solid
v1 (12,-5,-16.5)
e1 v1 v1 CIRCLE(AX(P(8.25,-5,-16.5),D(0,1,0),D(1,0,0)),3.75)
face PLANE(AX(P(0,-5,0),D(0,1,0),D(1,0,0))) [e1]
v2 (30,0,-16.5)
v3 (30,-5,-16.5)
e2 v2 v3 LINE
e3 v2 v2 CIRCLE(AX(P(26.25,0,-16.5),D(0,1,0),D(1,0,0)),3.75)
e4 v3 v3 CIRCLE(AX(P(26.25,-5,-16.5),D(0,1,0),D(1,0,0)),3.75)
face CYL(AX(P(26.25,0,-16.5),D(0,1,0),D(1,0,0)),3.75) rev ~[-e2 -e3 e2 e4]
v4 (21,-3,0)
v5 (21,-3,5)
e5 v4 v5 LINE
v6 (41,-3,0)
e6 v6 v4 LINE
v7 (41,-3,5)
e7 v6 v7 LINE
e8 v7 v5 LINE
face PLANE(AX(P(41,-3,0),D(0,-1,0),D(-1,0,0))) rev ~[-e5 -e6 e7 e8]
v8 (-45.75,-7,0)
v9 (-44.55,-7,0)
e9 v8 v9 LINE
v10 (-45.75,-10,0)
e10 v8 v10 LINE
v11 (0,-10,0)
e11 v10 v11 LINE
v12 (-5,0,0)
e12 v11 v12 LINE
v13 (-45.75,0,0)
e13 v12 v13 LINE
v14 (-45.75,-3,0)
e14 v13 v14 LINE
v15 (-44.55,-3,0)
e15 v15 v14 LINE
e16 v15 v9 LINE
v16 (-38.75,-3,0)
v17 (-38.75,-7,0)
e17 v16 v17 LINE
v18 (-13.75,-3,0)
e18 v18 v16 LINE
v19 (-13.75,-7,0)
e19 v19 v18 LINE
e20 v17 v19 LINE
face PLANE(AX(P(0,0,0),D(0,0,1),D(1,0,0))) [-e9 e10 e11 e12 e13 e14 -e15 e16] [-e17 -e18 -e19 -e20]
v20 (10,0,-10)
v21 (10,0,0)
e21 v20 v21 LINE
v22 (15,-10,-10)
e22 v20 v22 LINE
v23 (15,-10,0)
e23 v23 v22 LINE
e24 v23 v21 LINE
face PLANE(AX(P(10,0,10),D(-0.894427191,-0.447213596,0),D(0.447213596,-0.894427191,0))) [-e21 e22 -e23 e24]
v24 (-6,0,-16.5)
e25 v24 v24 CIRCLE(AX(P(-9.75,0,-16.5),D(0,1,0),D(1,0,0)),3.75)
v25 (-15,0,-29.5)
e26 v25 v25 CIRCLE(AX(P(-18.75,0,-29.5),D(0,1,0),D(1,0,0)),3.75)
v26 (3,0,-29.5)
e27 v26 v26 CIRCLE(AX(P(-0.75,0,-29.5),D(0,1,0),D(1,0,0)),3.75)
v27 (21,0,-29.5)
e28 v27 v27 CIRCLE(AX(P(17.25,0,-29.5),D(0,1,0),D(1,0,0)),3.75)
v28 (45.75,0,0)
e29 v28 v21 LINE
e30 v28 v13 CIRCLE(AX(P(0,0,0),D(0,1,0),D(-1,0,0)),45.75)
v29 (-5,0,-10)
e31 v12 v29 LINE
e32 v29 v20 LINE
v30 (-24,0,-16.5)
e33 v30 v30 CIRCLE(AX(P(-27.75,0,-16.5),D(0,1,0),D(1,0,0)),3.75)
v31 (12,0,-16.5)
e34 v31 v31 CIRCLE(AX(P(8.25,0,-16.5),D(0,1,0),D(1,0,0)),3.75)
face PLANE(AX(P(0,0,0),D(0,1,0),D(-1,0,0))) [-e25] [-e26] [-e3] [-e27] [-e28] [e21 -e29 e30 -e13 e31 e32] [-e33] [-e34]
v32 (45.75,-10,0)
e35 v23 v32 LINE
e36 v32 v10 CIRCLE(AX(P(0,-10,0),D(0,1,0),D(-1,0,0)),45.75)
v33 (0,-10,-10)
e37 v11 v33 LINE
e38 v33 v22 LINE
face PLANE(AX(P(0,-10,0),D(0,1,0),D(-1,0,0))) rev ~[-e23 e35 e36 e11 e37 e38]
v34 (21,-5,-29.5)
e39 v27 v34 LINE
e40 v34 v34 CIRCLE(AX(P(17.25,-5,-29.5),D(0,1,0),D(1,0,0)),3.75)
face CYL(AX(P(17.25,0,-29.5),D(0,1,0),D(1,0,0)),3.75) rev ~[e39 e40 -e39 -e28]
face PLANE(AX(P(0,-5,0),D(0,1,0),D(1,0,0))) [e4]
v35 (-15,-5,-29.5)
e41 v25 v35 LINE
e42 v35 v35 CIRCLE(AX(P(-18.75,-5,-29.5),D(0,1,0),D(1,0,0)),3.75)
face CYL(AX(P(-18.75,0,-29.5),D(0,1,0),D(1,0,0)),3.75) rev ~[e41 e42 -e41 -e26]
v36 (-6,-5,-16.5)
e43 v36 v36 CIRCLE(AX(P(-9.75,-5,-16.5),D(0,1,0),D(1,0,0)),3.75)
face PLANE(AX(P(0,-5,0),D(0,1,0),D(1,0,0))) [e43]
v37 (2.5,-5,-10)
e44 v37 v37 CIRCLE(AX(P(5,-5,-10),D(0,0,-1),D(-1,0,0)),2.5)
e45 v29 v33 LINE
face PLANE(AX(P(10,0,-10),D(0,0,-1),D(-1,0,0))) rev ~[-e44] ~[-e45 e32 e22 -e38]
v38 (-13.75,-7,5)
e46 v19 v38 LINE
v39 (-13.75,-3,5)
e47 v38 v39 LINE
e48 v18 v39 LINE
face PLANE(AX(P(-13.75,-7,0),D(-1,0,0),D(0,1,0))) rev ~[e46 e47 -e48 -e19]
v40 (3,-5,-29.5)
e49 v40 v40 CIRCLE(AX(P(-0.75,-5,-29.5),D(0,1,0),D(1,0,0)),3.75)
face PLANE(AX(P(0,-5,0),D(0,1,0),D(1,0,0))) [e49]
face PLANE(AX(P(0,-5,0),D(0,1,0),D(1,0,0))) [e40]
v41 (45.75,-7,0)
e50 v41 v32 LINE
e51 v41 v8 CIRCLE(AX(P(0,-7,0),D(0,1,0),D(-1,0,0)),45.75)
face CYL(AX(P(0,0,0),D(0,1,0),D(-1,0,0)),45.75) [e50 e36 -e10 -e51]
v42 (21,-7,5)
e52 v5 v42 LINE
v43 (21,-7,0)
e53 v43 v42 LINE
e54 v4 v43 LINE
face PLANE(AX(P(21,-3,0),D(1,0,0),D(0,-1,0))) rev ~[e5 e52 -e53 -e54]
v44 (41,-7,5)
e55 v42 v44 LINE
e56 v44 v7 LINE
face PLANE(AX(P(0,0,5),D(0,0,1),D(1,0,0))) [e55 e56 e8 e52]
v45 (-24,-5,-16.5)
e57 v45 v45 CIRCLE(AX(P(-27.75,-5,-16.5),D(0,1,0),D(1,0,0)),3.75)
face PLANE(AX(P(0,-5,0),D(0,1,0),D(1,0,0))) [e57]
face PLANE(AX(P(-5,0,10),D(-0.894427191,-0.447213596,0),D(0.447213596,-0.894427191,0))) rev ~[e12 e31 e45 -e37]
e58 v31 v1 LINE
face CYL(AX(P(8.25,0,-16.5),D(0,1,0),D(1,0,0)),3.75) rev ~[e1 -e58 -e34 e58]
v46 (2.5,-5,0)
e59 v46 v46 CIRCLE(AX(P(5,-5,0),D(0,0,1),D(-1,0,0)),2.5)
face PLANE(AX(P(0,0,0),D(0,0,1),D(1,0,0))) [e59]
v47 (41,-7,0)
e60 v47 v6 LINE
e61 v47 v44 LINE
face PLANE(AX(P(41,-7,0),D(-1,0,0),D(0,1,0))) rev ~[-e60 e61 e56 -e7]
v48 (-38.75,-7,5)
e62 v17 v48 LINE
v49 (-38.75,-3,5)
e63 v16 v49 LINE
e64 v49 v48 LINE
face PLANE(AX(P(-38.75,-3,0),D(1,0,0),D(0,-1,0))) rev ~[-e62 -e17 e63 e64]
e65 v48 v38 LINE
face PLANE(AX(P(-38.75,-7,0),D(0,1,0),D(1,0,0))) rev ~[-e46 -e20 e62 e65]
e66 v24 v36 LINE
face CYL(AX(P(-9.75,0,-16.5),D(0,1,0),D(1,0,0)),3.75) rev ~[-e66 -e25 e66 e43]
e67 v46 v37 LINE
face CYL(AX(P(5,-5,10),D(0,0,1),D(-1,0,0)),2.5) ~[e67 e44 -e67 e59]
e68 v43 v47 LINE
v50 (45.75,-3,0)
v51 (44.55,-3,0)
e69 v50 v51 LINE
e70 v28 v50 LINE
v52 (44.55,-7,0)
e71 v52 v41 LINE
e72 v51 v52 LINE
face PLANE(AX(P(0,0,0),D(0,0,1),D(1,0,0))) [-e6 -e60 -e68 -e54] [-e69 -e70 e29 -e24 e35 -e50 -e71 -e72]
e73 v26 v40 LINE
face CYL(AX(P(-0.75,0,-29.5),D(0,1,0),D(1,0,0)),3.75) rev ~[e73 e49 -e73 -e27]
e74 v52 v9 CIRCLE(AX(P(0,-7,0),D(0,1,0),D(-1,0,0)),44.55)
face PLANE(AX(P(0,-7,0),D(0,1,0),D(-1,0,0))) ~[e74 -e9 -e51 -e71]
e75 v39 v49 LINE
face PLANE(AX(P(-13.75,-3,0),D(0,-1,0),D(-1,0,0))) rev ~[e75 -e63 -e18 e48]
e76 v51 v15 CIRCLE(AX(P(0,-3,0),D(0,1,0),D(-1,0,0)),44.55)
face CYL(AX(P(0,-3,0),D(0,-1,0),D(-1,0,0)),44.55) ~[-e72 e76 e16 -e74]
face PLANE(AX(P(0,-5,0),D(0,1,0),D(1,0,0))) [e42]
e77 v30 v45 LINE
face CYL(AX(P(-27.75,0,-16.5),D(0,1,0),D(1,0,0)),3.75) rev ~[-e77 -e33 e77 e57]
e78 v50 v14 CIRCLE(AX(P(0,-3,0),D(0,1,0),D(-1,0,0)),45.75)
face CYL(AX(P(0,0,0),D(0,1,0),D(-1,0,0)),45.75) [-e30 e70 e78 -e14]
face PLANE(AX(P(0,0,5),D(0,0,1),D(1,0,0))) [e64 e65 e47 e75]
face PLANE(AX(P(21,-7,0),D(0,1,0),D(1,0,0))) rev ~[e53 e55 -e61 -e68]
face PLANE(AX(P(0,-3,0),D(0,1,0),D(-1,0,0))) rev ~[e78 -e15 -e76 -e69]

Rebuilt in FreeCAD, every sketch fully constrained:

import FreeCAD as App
import Part
import Sketcher
from FreeCAD import Vector
Q = App.Units.Quantity


def add_polygon(sketch, points):
    """Adds a closed chain of lines whose ends are joined by coincident constraints."""
    first, n = sketch.GeometryCount, len(points)
    for a, b in zip(points, points[1:] + points[:1]):
        sketch.addGeometry(Part.LineSegment(App.Vector(*a, 0), App.Vector(*b, 0)), False)
    for i in range(n):
        sketch.addConstraint(Sketcher.Constraint("Coincident", first + i, 2, first + (i + 1) % n, 1))

doc = App.newDocument("Part")
body = doc.addObject("PartDesign::Body", "Body")

# Sketch on XZ plane
sketch1 = doc.addObject("Sketcher::SketchObject", "Sketch")
body.addObject(sketch1)
sketch1.AttachmentSupport = (doc.XZ_Plane, [""])
sketch1.MapMode = "FlatFace"
sketch1.addGeometry(Part.Circle(Vector(0, 0, 0), Vector(0, 0, 1), 46), False)  # 0
add_polygon(sketch1, [(15, 10), (-10, 10), (-10, -10), (15, -10)])  # lines 1-4
sketch1.addConstraint([
    Sketcher.Constraint("Horizontal", 1),
    Sketcher.Constraint("Vertical", 2),
    Sketcher.Constraint("Horizontal", 3),
    Sketcher.Constraint("Vertical", 4),
    Sketcher.Constraint("Coincident", 0, 3, -1, 1),
    Sketcher.Constraint("Diameter", 0, Q("91.5 mm")),
    Sketcher.Constraint("DistanceY", 2, 2, 2, 1, Q("20 mm")),
    Sketcher.Constraint("DistanceX", 1, 2, 1, 1, Q("25 mm")),
    Sketcher.Constraint("DistanceX", 1, 2, -1, 1, Q("10 mm")),
    Sketcher.Constraint("DistanceY", -1, 1, 1, 2, Q("10 mm")),
])
pad1 = doc.addObject("PartDesign::Pad", "Pad")
body.addObject(pad1)
pad1.Profile = sketch1
pad1.Length = 10

# Sketch on XY plane
sketch2 = doc.addObject("Sketcher::SketchObject", "Sketch001")
body.addObject(sketch2)
sketch2.AttachmentSupport = (doc.XY_Plane, [""])
sketch2.MapMode = "FlatFace"
sketch2.AttachmentOffset = App.Placement(Vector(0, 0, -10), App.Rotation())
add_polygon(sketch2, [(10, 0), (15, -5), (15, 0)])  # lines 0-2
sketch2.addConstraint([
    Sketcher.Constraint("Vertical", 1),
    Sketcher.Constraint("Horizontal", 2),
    Sketcher.Constraint("PointOnObject", 1, 2, -1),
    Sketcher.Constraint("Equal", 2, 1),
    Sketcher.Constraint("DistanceX", 2, 2, 2, 1, Q("5 mm")),
    Sketcher.Constraint("DistanceX", -1, 1, 0, 2, Q("15 mm")),
])
pad2 = doc.addObject("PartDesign::Pad", "Pad001")
body.addObject(pad2)
pad2.Profile = sketch2
pad2.Type = "TwoLengths"
pad2.Length = 20.5
pad2.Length2 = 0.5

# Sketch on XY plane
sketch3 = doc.addObject("Sketcher::SketchObject", "Sketch002")
body.addObject(sketch3)
sketch3.AttachmentSupport = (doc.XY_Plane, [""])
sketch3.MapMode = "FlatFace"
sketch3.AttachmentOffset = App.Placement(Vector(0, 0, -10.5), App.Rotation())
add_polygon(sketch3, [(-12, -5), (-5, -5), (-5, 0), (-12, 0)])  # lines 0-3
sketch3.addConstraint([
    Sketcher.Constraint("Horizontal", 0),
    Sketcher.Constraint("Vertical", 1),
    Sketcher.Constraint("Horizontal", 2),
    Sketcher.Constraint("Vertical", 3),
    Sketcher.Constraint("PointOnObject", 1, 2, -1),
    Sketcher.Constraint("DistanceY", 1, 1, 1, 2, Q("5 mm")),
    Sketcher.Constraint("DistanceX", 0, 2, -1, 1, Q("5 mm")),
    Sketcher.Constraint("DistanceX", 0, 1, 0, 2, Q("7.2866 mm")),
])
pad3 = doc.addObject("PartDesign::Pad", "Pad002")
body.addObject(pad3)
pad3.Profile = sketch3
pad3.Length = 21

# Sketch on XY plane
sketch4 = doc.addObject("Sketcher::SketchObject", "Sketch003")
body.addObject(sketch4)
sketch4.AttachmentSupport = (doc.XY_Plane, [""])
sketch4.MapMode = "FlatFace"
sketch4.AttachmentOffset = App.Placement(Vector(0, 0, -10), App.Rotation())
add_polygon(sketch4, [(15, -10), (15, -5), (10, 0), (-5, 0), (-5, -5), (-10, -5), (-10, -10)])  # lines 0-6
sketch4.addConstraint([
    Sketcher.Constraint("Vertical", 0),
    Sketcher.Constraint("Horizontal", 2),
    Sketcher.Constraint("Vertical", 3),
    Sketcher.Constraint("Horizontal", 4),
    Sketcher.Constraint("Vertical", 5),
    Sketcher.Constraint("Horizontal", 6),
    Sketcher.Constraint("PointOnObject", 1, 2, -1),
    Sketcher.Constraint("Horizontal", 0, 2, 3, 2),
    Sketcher.Constraint("Equal", 4, 0),
    Sketcher.Constraint("Equal", 0, 3),
    Sketcher.Constraint("DistanceX", 4, 2, 4, 1, Q("5 mm")),
    Sketcher.Constraint("DistanceX", 2, 2, -1, 1, Q("5 mm")),
    Sketcher.Constraint("DistanceX", 1, 2, 0, 2, Q("5 mm")),
    Sketcher.Constraint("DistanceX", 2, 2, 2, 1, Q("15 mm")),
])
pad4 = doc.addObject("PartDesign::Pad", "Pad003")
body.addObject(pad4)
pad4.Profile = sketch4
pad4.Length = 21

# Sketch on XZ plane
sketch5 = doc.addObject("Sketcher::SketchObject", "Sketch004")
body.addObject(sketch5)
sketch5.AttachmentSupport = (doc.XZ_Plane, [""])
sketch5.MapMode = "FlatFace"
add_polygon(sketch5, [(0, 10), (10, 10), (10, -10), (0, -10)])  # lines 0-3
sketch5.addConstraint([
    Sketcher.Constraint("Horizontal", 0),
    Sketcher.Constraint("Vertical", 1),
    Sketcher.Constraint("Horizontal", 2),
    Sketcher.Constraint("Vertical", 3),
    Sketcher.Constraint("Symmetric", 2, 2, 3, 2, -1, 1),
    Sketcher.Constraint("DistanceX", 0, 1, 0, 2, Q("10 mm")),
    Sketcher.Constraint("DistanceY", 1, 2, 1, 1, Q("20 mm")),
])
pocket1 = doc.addObject("PartDesign::Pocket", "Pocket")
body.addObject(pocket1)
pocket1.Profile = sketch5
pocket1.Length = 10
pocket1.Reversed = True

# Sketch on XY plane
sketch6 = doc.addObject("Sketcher::SketchObject", "Sketch005")
body.addObject(sketch6)
sketch6.AttachmentSupport = (doc.XY_Plane, [""])
sketch6.MapMode = "FlatFace"
sketch6.AttachmentOffset = App.Placement(Vector(0, 0, 10), App.Rotation())
add_polygon(sketch6, [(0, 0), (0, -10), (-5, 0)])  # lines 0-2
sketch6.addConstraint([
    Sketcher.Constraint("Vertical", 0),
    Sketcher.Constraint("Horizontal", 2),
    Sketcher.Constraint("Coincident", 2, 2, -1, 1),
    Sketcher.Constraint("DistanceX", 2, 1, 2, 2, Q("5 mm")),
    Sketcher.Constraint("DistanceY", 0, 2, 0, 1, Q("10 mm")),
])
pocket2 = doc.addObject("PartDesign::Pocket", "Pocket001")
body.addObject(pocket2)
pocket2.Profile = sketch6
pocket2.Length = 20

# Sketch on XY plane
sketch7 = doc.addObject("Sketcher::SketchObject", "Sketch006")
body.addObject(sketch7)
sketch7.AttachmentSupport = (doc.XY_Plane, [""])
sketch7.MapMode = "FlatFace"
sketch7.AttachmentOffset = App.Placement(Vector(0, 0, 10), App.Rotation())
add_polygon(sketch7, [(10, -10), (10, 0), (15, -10)])  # lines 0-2
sketch7.addConstraint([
    Sketcher.Constraint("Vertical", 0),
    Sketcher.Constraint("Horizontal", 2),
    Sketcher.Constraint("PointOnObject", 0, 2, -1),
    Sketcher.Constraint("DistanceX", 2, 2, 2, 1, Q("5 mm")),
    Sketcher.Constraint("DistanceY", 0, 1, 0, 2, Q("10 mm")),
    Sketcher.Constraint("DistanceX", -1, 1, 0, 2, Q("10 mm")),
])
pocket3 = doc.addObject("PartDesign::Pocket", "Pocket002")
body.addObject(pocket3)
pocket3.Profile = sketch7
pocket3.Length = 20

# Sketch on XY plane
sketch8 = doc.addObject("Sketcher::SketchObject", "Sketch007")
body.addObject(sketch8)
sketch8.AttachmentSupport = (doc.XY_Plane, [""])
sketch8.MapMode = "FlatFace"
sketch8.AttachmentOffset = App.Placement(Vector(0, 0, 10), App.Rotation())
sketch8.addGeometry(Part.Circle(Vector(5, -5, 0), Vector(0, 0, 1), 2.5), False)
sketch8.addConstraint([
    Sketcher.Constraint("Diameter", 0, Q("5 mm")),
    Sketcher.Constraint("DistanceX", -1, 1, 0, 3, Q("5 mm")),
    Sketcher.Constraint("DistanceY", 0, 3, -1, 1, Q("5 mm")),
])
pad5 = doc.addObject("PartDesign::Pad", "Pad004")
body.addObject(pad5)
pad5.Profile = sketch8
pad5.Length = 20
pad5.Reversed = True

# Sketch on XY plane
sketch9 = doc.addObject("Sketcher::SketchObject", "Sketch008")
body.addObject(sketch9)
sketch9.AttachmentSupport = (doc.XY_Plane, [""])
sketch9.MapMode = "FlatFace"
add_polygon(sketch9, [(-46, 0), (-46, -10), (46, -10), (46, 0)])  # lines 0-3
sketch9.addConstraint([
    Sketcher.Constraint("Vertical", 0),
    Sketcher.Constraint("Horizontal", 1),
    Sketcher.Constraint("Vertical", 2),
    Sketcher.Constraint("Horizontal", 3),
    Sketcher.Constraint("Symmetric", 2, 2, 3, 2, -1, 1),
    Sketcher.Constraint("DistanceY", 0, 2, 0, 1, Q("10 mm")),
    Sketcher.Constraint("DistanceX", 1, 1, 1, 2, Q("91.5 mm")),
])
pocket4 = doc.addObject("PartDesign::Pocket", "Pocket003")
body.addObject(pocket4)
pocket4.Profile = sketch9
pocket4.Length = 50
pocket4.Reversed = True

# Sketch on XY plane
sketch10 = doc.addObject("Sketcher::SketchObject", "Sketch009")
body.addObject(sketch10)
sketch10.AttachmentSupport = (doc.XY_Plane, [""])
sketch10.MapMode = "FlatFace"
add_polygon(sketch10, [(-38.8, -3), (-38.8, -7), (-13.8, -7), (-13.8, -3)])  # lines 0-3
add_polygon(sketch10, [(21, -3), (21, -7), (41, -7), (41, -3)])  # lines 4-7
sketch10.addConstraint([
    Sketcher.Constraint("Vertical", 0),
    Sketcher.Constraint("Horizontal", 1),
    Sketcher.Constraint("Vertical", 2),
    Sketcher.Constraint("Horizontal", 3),
    Sketcher.Constraint("Vertical", 4),
    Sketcher.Constraint("Horizontal", 5),
    Sketcher.Constraint("Vertical", 6),
    Sketcher.Constraint("Horizontal", 7),
    Sketcher.Constraint("Horizontal", 1, 2, 4, 2),
    Sketcher.Constraint("Horizontal", 3, 2, 6, 2),
    Sketcher.Constraint("DistanceX", 1, 1, 1, 2, Q("25 mm")),
    Sketcher.Constraint("DistanceX", 5, 1, 5, 2, Q("20 mm")),
    Sketcher.Constraint("DistanceY", 0, 2, 0, 1, Q("4 mm")),
    Sketcher.Constraint("DistanceY", 0, 2, -1, 1, Q("7 mm")),
    Sketcher.Constraint("DistanceX", -1, 1, 4, 2, Q("21 mm")),
    Sketcher.Constraint("DistanceX", 0, 2, -1, 1, Q("38.75 mm")),
])
pad6 = doc.addObject("PartDesign::Pad", "Pad005")
body.addObject(pad6)
pad6.Profile = sketch10
pad6.Length = 5

# Sketch on XY plane
sketch11 = doc.addObject("Sketcher::SketchObject", "Sketch010")
body.addObject(sketch11)
sketch11.AttachmentSupport = (doc.XY_Plane, [""])
sketch11.MapMode = "FlatFace"
add_polygon(sketch11, [(-44.5, -3), (-45.8, -3), (-45.8, -7), (-44.5, -7)])  # lines 0-3
sketch11.addConstraint([
    Sketcher.Constraint("Horizontal", 0),
    Sketcher.Constraint("Vertical", 1),
    Sketcher.Constraint("Horizontal", 2),
    Sketcher.Constraint("Vertical", 3),
    Sketcher.Constraint("DistanceY", 1, 2, 1, 1, Q("4 mm")),
    Sketcher.Constraint("DistanceX", 0, 2, 0, 1, Q("1.2 mm")),
    Sketcher.Constraint("DistanceY", 0, 2, -1, 1, Q("3 mm")),
    Sketcher.Constraint("DistanceX", 0, 2, -1, 1, Q("45.75 mm")),
])
groove = doc.addObject("PartDesign::Groove", "Groove")
body.addObject(groove)
groove.Profile = sketch11
groove.ReferenceAxis = (sketch11, ["V_Axis"])
groove.Angle = 360

# Sketch on XZ plane
sketch12 = doc.addObject("Sketcher::SketchObject", "Sketch011")
body.addObject(sketch12)
sketch12.AttachmentSupport = (doc.XZ_Plane, [""])
sketch12.MapMode = "FlatFace"
sketch12.addGeometry([
    Part.Circle(Vector(-27.8, -16.5, 0), Vector(0, 0, 1), 3.8),  # 0
    Part.Circle(Vector(-9.8, -16.5, 0), Vector(0, 0, 1), 3.8),  # 1
    Part.Circle(Vector(8.2, -16.5, 0), Vector(0, 0, 1), 3.8),  # 2
    Part.Circle(Vector(26.2, -16.5, 0), Vector(0, 0, 1), 3.8),  # 3
    Part.Circle(Vector(-18.8, -29.5, 0), Vector(0, 0, 1), 3.8),  # 4
    Part.Circle(Vector(-0.8, -29.5, 0), Vector(0, 0, 1), 3.8),  # 5
    Part.Circle(Vector(17.2, -29.5, 0), Vector(0, 0, 1), 3.8),  # 6
], False)
sketch12.addConstraint([
    Sketcher.Constraint("Equal", 0, 1),
    Sketcher.Constraint("Equal", 1, 2),
    Sketcher.Constraint("Equal", 2, 3),
    Sketcher.Constraint("Equal", 3, 4),
    Sketcher.Constraint("Equal", 4, 5),
    Sketcher.Constraint("Equal", 5, 6),
    Sketcher.Constraint("Horizontal", 0, 3, 1, 3),
    Sketcher.Constraint("Horizontal", 1, 3, 2, 3),
    Sketcher.Constraint("Horizontal", 2, 3, 3, 3),
    Sketcher.Constraint("Horizontal", 4, 3, 5, 3),
    Sketcher.Constraint("Horizontal", 5, 3, 6, 3),
    Sketcher.Constraint("Diameter", 0, Q("7.5 mm")),
    Sketcher.Constraint("DistanceX", 0, 3, 1, 3, Q("18 mm")),
    Sketcher.Constraint("DistanceX", 1, 3, 2, 3, Q("18 mm")),
    Sketcher.Constraint("DistanceX", 2, 3, 3, 3, Q("18 mm")),
    Sketcher.Constraint("DistanceX", 0, 3, 4, 3, Q("9 mm")),
    Sketcher.Constraint("DistanceY", 4, 3, 0, 3, Q("13 mm")),
    Sketcher.Constraint("DistanceX", 1, 3, 5, 3, Q("9 mm")),
    Sketcher.Constraint("DistanceX", 2, 3, 6, 3, Q("9 mm")),
    Sketcher.Constraint("DistanceY", 0, 3, -1, 1, Q("16.5 mm")),
    Sketcher.Constraint("DistanceX", 0, 3, -1, 1, Q("27.75 mm")),
])
pocket5 = doc.addObject("PartDesign::Pocket", "Pocket004")
body.addObject(pocket5)
pocket5.Profile = sketch12
pocket5.Length = 5
pocket5.Reversed = True

doc.recompute()
